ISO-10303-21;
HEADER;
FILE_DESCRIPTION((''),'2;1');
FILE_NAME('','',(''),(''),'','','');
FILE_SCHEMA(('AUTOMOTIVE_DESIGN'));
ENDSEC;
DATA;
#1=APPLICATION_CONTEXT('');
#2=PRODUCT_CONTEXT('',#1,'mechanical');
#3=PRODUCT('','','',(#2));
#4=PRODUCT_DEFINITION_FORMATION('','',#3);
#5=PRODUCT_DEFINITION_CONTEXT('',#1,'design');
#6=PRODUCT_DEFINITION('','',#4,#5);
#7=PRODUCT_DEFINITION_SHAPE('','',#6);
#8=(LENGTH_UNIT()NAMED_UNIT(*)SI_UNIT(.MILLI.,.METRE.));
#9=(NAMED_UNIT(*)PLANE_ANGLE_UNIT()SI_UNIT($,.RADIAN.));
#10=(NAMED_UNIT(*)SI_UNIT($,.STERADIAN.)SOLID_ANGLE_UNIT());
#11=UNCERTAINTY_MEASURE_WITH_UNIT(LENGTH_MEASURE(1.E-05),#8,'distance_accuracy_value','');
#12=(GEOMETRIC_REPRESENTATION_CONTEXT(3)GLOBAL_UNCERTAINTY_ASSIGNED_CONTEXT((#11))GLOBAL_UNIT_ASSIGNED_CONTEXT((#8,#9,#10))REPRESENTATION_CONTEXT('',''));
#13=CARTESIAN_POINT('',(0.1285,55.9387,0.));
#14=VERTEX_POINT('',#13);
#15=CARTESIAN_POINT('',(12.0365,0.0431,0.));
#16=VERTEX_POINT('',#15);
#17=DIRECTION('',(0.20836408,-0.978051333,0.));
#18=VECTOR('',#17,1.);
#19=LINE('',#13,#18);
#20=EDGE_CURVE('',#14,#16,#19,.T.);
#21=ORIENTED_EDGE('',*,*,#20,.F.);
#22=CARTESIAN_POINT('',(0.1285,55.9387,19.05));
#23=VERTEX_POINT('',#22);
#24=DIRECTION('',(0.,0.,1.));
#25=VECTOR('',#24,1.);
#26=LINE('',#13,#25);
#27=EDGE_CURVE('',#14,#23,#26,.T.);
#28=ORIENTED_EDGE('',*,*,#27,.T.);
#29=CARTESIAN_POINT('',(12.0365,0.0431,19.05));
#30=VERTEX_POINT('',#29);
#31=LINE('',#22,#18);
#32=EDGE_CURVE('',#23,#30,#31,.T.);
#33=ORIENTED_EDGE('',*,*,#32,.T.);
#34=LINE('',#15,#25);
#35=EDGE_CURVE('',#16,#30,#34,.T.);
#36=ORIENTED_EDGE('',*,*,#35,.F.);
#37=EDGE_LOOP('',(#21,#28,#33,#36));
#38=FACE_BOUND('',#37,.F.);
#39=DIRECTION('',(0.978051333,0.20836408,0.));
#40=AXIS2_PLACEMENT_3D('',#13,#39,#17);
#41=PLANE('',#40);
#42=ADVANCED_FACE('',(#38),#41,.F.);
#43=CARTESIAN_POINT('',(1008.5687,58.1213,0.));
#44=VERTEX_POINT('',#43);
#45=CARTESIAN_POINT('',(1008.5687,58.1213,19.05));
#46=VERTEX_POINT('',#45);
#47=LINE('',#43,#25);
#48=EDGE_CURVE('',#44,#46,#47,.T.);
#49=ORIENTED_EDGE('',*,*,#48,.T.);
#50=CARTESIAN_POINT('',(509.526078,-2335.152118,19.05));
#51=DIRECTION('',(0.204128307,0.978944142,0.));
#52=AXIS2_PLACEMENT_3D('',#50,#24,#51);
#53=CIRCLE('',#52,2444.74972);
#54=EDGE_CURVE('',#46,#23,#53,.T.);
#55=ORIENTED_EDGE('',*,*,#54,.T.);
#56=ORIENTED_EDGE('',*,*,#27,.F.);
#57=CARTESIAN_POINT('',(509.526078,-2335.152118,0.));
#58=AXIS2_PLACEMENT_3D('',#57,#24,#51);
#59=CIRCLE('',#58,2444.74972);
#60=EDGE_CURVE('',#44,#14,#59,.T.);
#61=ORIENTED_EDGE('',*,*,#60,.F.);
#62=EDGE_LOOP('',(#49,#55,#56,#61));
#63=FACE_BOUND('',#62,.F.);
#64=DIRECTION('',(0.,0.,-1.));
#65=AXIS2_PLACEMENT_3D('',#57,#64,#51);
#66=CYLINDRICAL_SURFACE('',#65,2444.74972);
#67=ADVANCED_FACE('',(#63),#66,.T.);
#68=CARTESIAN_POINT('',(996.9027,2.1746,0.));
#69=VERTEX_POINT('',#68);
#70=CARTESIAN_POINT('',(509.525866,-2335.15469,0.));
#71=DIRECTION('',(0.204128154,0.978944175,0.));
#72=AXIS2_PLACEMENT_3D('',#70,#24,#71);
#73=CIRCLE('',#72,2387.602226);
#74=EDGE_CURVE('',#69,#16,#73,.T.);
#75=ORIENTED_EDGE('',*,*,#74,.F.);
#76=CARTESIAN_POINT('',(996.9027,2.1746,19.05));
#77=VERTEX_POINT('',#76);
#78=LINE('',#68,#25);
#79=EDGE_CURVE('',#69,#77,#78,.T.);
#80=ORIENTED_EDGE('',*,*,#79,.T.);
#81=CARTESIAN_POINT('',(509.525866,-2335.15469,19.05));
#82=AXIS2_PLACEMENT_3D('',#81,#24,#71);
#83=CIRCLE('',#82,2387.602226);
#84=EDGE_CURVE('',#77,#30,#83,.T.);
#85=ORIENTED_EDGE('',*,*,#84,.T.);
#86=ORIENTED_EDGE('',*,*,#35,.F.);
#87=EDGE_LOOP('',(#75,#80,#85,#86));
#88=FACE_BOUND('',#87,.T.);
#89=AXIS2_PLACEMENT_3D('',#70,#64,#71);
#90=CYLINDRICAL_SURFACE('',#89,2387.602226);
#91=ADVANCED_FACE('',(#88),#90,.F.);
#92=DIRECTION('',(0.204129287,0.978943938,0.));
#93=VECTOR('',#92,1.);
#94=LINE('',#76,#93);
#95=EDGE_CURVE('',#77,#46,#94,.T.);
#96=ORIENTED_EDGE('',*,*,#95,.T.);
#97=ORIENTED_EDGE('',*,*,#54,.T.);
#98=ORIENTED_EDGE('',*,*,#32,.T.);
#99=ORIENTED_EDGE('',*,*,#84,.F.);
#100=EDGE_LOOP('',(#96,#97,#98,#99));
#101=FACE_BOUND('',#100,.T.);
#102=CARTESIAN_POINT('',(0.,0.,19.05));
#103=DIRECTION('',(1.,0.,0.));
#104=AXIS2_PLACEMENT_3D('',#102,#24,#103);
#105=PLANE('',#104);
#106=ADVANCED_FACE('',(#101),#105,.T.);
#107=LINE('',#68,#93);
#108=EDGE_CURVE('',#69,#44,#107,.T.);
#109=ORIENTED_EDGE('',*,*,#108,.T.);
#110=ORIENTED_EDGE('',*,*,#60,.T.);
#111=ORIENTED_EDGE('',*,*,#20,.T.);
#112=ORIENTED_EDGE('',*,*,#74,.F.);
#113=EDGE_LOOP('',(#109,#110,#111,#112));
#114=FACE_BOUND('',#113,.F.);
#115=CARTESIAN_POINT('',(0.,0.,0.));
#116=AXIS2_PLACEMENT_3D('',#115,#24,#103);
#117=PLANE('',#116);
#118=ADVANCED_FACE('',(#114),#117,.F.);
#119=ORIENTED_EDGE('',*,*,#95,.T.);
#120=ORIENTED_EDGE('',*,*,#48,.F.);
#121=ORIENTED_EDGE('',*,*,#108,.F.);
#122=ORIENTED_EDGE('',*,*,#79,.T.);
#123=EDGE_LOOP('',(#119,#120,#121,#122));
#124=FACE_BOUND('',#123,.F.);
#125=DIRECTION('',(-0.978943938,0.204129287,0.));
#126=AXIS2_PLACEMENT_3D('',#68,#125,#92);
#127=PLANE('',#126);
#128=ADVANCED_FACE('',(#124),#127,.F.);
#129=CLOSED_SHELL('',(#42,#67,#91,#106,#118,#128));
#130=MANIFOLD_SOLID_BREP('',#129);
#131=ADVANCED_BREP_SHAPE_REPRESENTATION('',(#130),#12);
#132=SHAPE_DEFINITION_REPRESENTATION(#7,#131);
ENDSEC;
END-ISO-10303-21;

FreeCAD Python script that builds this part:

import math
import FreeCAD as App
import Part
import Sketcher
Q = App.Units.Quantity

doc = App.newDocument("Part")
body = doc.addObject("PartDesign::Body", "Body")

sketch1 = doc.addObject("Sketcher::SketchObject", "Sketch")
body.addObject(sketch1)
sketch1.AttachmentSupport = (doc.XY_Plane, [""])
sketch1.MapMode = "FlatFace"
sketch1.addGeometry(Part.LineSegment(App.Vector(997, 2, 0), App.Vector(1009, 58, 0)), False)
sketch1.addGeometry(Part.ArcOfCircle(Part.Circle(App.Vector(510, -2335, 0), App.Vector(0, 0, 1), 2445), math.radians(78), math.radians(102)), False)
sketch1.addGeometry(Part.LineSegment(App.Vector(0, 56, 0), App.Vector(12, 0, 0)), False)
sketch1.addGeometry(Part.ArcOfCircle(Part.Circle(App.Vector(510, -2335, 0), App.Vector(0, 0, 1), 2388), math.radians(78), math.radians(102)), False)
sketch1.addConstraint(Sketcher.Constraint("Coincident", 0, 2, 1, 1))
sketch1.addConstraint(Sketcher.Constraint("Coincident", 1, 2, 2, 1))
sketch1.addConstraint(Sketcher.Constraint("Coincident", 2, 2, 3, 2))
sketch1.addConstraint(Sketcher.Constraint("Coincident", 3, 1, 0, 1))
sketch1.addConstraint(Sketcher.Constraint("Equal", 0, 2))
sketch1.addConstraint(Sketcher.Constraint("Distance", 0, Q("2.25 in")))
sketch1.addConstraint(Sketcher.Constraint("Radius", 1, Q("2444.7495 mm")))
sketch1.addConstraint(Sketcher.Constraint("Radius", 3, Q("2387.6022 mm")))
sketch1.addConstraint(Sketcher.Constraint("DistanceY", -1, 1, 2, 2, Q("0.0017 in")))
sketch1.addConstraint(Sketcher.Constraint("DistanceX", 2, 2, 1, 3, Q("19.5862 in")))
sketch1.addConstraint(Sketcher.Constraint("DistanceX", -1, 1, 1, 3, Q("509.526 mm")))
sketch1.addConstraint(Sketcher.Constraint("DistanceX", -1, 1, 0, 2, Q("1008.5687 mm")))
sketch1.addConstraint(Sketcher.Constraint("Angle", 0, Q("78.2215 deg")))
sketch1.addConstraint(Sketcher.Constraint("Angle", 2, Q("-77.9735 deg")))
pad1 = doc.addObject("PartDesign::Pad", "Pad")
body.addObject(pad1)
pad1.Profile = sketch1
pad1.Length = Q("0.75 in")

doc.recompute()
